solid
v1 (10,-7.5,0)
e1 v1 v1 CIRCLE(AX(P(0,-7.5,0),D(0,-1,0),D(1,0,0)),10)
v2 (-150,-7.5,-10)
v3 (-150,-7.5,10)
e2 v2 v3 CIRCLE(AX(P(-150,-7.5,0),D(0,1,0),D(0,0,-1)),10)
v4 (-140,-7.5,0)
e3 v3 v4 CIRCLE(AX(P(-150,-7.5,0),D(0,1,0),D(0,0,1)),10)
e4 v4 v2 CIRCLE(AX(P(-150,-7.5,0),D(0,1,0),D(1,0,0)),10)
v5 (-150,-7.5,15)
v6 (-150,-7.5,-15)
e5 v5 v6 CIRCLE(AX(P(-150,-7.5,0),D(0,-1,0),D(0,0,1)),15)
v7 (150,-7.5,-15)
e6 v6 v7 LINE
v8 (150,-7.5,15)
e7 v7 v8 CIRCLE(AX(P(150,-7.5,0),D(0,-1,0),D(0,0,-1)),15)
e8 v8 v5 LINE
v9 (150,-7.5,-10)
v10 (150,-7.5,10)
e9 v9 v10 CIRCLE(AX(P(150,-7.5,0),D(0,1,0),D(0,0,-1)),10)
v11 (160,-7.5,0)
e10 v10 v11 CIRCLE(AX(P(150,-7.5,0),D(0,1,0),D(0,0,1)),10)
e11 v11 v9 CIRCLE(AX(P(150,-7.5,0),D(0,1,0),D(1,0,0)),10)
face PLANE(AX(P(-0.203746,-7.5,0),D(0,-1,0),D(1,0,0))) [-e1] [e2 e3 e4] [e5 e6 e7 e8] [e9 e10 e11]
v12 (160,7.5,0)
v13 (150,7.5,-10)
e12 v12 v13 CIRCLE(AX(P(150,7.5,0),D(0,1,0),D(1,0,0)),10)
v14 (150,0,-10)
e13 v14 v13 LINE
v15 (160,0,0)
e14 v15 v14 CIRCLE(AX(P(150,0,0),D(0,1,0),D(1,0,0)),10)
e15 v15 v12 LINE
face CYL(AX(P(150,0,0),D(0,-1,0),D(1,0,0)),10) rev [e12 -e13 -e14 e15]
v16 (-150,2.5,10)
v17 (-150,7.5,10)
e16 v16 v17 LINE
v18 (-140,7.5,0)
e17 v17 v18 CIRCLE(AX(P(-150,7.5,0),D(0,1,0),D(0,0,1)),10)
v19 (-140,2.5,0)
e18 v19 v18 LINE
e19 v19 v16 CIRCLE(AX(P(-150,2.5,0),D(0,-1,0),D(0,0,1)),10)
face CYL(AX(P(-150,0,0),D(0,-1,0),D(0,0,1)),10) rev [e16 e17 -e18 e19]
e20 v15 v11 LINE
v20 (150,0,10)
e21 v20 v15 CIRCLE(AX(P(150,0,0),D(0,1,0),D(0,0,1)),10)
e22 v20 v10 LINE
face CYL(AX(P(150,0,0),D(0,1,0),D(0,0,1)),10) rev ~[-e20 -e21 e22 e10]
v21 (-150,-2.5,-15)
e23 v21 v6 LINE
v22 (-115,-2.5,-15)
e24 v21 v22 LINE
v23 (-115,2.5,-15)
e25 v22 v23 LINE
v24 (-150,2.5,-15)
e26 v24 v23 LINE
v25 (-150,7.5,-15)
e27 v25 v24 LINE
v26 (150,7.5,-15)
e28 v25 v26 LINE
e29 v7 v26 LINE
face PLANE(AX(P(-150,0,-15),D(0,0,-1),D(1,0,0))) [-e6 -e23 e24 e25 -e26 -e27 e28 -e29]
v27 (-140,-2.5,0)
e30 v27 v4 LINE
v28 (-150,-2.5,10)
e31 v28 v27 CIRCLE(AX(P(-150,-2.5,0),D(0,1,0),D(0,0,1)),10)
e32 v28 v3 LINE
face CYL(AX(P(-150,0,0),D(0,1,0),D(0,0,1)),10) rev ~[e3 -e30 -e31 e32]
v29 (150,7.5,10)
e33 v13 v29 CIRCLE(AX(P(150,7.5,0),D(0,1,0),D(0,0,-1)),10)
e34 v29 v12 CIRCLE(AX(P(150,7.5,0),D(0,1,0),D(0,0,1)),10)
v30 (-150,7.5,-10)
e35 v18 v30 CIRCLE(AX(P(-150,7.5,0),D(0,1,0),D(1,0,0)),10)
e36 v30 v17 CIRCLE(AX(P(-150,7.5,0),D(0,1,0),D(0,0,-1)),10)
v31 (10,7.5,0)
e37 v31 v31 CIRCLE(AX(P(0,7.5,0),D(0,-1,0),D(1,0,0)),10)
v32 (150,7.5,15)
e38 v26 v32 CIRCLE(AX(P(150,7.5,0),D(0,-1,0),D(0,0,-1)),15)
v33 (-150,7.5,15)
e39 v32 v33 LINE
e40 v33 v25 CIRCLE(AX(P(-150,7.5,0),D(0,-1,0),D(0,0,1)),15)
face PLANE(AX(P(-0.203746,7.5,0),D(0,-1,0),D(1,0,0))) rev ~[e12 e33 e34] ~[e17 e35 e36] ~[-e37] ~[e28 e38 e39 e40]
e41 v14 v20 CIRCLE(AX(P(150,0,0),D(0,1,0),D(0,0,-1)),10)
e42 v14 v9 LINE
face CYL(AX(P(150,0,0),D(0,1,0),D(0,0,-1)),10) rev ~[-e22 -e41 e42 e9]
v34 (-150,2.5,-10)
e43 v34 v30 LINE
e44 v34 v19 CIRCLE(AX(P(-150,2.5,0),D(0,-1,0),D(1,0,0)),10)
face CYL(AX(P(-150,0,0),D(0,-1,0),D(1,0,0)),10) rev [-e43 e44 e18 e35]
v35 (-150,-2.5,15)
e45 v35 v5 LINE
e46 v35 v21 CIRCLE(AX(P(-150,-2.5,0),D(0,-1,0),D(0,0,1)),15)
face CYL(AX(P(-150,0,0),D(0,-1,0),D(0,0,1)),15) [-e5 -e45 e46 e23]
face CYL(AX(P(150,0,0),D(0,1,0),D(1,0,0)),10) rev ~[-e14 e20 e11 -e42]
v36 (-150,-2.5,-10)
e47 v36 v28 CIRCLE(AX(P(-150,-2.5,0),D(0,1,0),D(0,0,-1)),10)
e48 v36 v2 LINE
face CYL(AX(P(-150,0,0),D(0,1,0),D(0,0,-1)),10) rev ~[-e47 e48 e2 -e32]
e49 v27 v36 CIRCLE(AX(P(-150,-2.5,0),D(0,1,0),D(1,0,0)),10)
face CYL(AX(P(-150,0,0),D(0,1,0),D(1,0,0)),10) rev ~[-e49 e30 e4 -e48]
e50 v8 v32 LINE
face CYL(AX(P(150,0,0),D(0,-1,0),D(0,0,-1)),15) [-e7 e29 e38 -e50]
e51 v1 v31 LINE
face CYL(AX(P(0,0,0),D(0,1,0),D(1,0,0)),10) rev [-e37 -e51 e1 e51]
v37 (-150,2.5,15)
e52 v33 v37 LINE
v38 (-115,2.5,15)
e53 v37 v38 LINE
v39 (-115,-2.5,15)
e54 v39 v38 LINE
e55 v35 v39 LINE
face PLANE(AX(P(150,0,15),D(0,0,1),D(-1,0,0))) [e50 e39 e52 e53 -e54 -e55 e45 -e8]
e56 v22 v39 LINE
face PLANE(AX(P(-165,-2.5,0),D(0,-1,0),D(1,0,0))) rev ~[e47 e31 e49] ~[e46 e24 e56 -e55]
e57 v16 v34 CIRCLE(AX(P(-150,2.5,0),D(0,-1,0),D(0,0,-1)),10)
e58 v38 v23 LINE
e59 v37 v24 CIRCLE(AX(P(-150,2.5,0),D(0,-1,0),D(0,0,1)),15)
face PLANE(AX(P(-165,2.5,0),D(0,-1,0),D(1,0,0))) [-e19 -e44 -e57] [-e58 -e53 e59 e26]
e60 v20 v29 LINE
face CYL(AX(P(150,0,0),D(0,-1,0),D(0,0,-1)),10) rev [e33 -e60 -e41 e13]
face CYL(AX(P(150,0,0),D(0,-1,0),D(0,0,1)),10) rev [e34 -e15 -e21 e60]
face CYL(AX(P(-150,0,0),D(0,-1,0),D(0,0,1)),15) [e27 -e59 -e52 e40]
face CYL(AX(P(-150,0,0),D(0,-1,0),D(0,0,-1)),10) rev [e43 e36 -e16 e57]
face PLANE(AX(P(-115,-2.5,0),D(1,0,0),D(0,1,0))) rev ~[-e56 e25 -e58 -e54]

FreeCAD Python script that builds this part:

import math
import FreeCAD as App
import Part
import Sketcher
from FreeCAD import Vector
Q = App.Units.Quantity


def add_polygon(sketch, points):
    """Adds a closed chain of lines whose ends are joined by coincident constraints."""
    first, n = sketch.GeometryCount, len(points)
    for a, b in zip(points, points[1:] + points[:1]):
        sketch.addGeometry(Part.LineSegment(App.Vector(*a, 0), App.Vector(*b, 0)), False)
    for i in range(n):
        sketch.addConstraint(Sketcher.Constraint("Coincident", first + i, 2, first + (i + 1) % n, 1))

doc = App.newDocument("Part")
body = doc.addObject("PartDesign::Body", "Body")

# Sketch on XZ plane
sketch1 = body.newObject("Sketcher::SketchObject", "Sketch")
sketch1.AttachmentSupport = (doc.getObject("XZ_Plane"), [""])
sketch1.MapMode = "FlatFace"
sketch1.addGeometry([
    Part.LineSegment(Vector(150, 15, 0), Vector(-150, 15, 0)),  # 0
    Part.ArcOfCircle(Part.Circle(Vector(-150, 0, 0), Vector(0, 0, 1), 15), math.radians(90), math.radians(270)),  # 1
    Part.LineSegment(Vector(-150, -15, 0), Vector(150, -15, 0)),  # 2
    Part.ArcOfCircle(Part.Circle(Vector(150, 0, 0), Vector(0, 0, 1), 15), math.radians(-90), math.radians(90)),  # 3
    Part.ArcOfCircle(Part.Circle(Vector(150, 0, 0), Vector(0, 0, 1), 10), math.radians(90), math.radians(270)),  # 4
    Part.ArcOfCircle(Part.Circle(Vector(150, 0, 0), Vector(0, 0, 1), 10), math.radians(0), math.radians(90)),  # 5
    Part.ArcOfCircle(Part.Circle(Vector(150, 0, 0), Vector(0, 0, 1), 10), math.radians(-90), math.radians(0)),  # 6
    Part.ArcOfCircle(Part.Circle(Vector(-150, 0, 0), Vector(0, 0, 1), 10), math.radians(0), math.radians(90)),  # 7
    Part.ArcOfCircle(Part.Circle(Vector(-150, 0, 0), Vector(0, 0, 1), 10), math.radians(-90), math.radians(0)),  # 8
    Part.ArcOfCircle(Part.Circle(Vector(-150, 0, 0), Vector(0, 0, 1), 10), math.radians(90), math.radians(270)),  # 9
    Part.Circle(Vector(0, 0, 0), Vector(0, 0, 1), 10),  # 10
], False)
sketch1.addConstraint([
    Sketcher.Constraint("Tangent", 0, 2, 1, 1),
    Sketcher.Constraint("Tangent", 1, 2, 2, 1),
    Sketcher.Constraint("Tangent", 2, 2, 3, 1),
    Sketcher.Constraint("Tangent", 3, 2, 0, 1),
    Sketcher.Constraint("Tangent", 4, 1, 5, 2),
    Sketcher.Constraint("Tangent", 5, 1, 6, 2),
    Sketcher.Constraint("Tangent", 6, 1, 4, 2),
    Sketcher.Constraint("Tangent", 7, 1, 8, 2),
    Sketcher.Constraint("Tangent", 8, 1, 9, 2),
    Sketcher.Constraint("Tangent", 9, 1, 7, 2),
    Sketcher.Constraint("Horizontal", 0),
    Sketcher.Constraint("Horizontal", 2),
    Sketcher.Constraint("Coincident", 10, 3, -1, 1),
    Sketcher.Constraint("Coincident", 4, 3, 3, 3),
    Sketcher.Constraint("Coincident", 7, 3, 1, 3),
    Sketcher.Constraint("Equal", 6, 7),
    Sketcher.Constraint("Equal", 9, 10),
    Sketcher.Constraint("Symmetric", 1, 3, 3, 3, -1, 1),
    Sketcher.Constraint("PointOnObject", 5, 1, -1),
    Sketcher.Constraint("PointOnObject", 7, 1, -1),
    Sketcher.Constraint("Vertical", 3, 2, 4, 1),
    Sketcher.Constraint("Vertical", 4, 1, 6, 1),
    Sketcher.Constraint("Vertical", 1, 2, 8, 1),
    Sketcher.Constraint("Vertical", 8, 1, 9, 1),
    Sketcher.Constraint("Diameter", 10, Q("20 mm")),
    Sketcher.Constraint("Radius", 1, Q("15 mm")),
    Sketcher.Constraint("DistanceX", 0, 2, 0, 1, Q("300 mm")),
])
pad1 = body.newObject("PartDesign::Pad", "Pad")
pad1.Profile = sketch1
pad1.Length = 15
pad1.Midplane = True

# Sketch on XY plane
sketch2 = body.newObject("Sketcher::SketchObject", "Sketch001")
sketch2.AttachmentSupport = (doc.getObject("XY_Plane"), [""])
sketch2.MapMode = "FlatFace"
add_polygon(sketch2, [(-165, 2.5), (-165, -2.5), (-115, -2.5), (-115, 2.5)])  # lines 0-3
sketch2.addConstraint([
    Sketcher.Constraint("Vertical", 0),
    Sketcher.Constraint("Horizontal", 1),
    Sketcher.Constraint("Vertical", 2),
    Sketcher.Constraint("Horizontal", 3),
    Sketcher.Constraint("DistanceX", 1, 1, 1, 2, Q("50 mm")),
    Sketcher.Constraint("DistanceY", 0, 2, 0, 1, Q("5 mm")),
    Sketcher.Constraint("DistanceX", 0, 2, -1, 1, Q("165 mm")),
    Sketcher.Constraint("DistanceY", 0, 2, -1, 1, Q("2.5 mm")),
])
pocket1 = body.newObject("PartDesign::Pocket", "Pocket")
pocket1.Profile = sketch2
pocket1.Length = 30
pocket1.Midplane = True

doc.recompute()
